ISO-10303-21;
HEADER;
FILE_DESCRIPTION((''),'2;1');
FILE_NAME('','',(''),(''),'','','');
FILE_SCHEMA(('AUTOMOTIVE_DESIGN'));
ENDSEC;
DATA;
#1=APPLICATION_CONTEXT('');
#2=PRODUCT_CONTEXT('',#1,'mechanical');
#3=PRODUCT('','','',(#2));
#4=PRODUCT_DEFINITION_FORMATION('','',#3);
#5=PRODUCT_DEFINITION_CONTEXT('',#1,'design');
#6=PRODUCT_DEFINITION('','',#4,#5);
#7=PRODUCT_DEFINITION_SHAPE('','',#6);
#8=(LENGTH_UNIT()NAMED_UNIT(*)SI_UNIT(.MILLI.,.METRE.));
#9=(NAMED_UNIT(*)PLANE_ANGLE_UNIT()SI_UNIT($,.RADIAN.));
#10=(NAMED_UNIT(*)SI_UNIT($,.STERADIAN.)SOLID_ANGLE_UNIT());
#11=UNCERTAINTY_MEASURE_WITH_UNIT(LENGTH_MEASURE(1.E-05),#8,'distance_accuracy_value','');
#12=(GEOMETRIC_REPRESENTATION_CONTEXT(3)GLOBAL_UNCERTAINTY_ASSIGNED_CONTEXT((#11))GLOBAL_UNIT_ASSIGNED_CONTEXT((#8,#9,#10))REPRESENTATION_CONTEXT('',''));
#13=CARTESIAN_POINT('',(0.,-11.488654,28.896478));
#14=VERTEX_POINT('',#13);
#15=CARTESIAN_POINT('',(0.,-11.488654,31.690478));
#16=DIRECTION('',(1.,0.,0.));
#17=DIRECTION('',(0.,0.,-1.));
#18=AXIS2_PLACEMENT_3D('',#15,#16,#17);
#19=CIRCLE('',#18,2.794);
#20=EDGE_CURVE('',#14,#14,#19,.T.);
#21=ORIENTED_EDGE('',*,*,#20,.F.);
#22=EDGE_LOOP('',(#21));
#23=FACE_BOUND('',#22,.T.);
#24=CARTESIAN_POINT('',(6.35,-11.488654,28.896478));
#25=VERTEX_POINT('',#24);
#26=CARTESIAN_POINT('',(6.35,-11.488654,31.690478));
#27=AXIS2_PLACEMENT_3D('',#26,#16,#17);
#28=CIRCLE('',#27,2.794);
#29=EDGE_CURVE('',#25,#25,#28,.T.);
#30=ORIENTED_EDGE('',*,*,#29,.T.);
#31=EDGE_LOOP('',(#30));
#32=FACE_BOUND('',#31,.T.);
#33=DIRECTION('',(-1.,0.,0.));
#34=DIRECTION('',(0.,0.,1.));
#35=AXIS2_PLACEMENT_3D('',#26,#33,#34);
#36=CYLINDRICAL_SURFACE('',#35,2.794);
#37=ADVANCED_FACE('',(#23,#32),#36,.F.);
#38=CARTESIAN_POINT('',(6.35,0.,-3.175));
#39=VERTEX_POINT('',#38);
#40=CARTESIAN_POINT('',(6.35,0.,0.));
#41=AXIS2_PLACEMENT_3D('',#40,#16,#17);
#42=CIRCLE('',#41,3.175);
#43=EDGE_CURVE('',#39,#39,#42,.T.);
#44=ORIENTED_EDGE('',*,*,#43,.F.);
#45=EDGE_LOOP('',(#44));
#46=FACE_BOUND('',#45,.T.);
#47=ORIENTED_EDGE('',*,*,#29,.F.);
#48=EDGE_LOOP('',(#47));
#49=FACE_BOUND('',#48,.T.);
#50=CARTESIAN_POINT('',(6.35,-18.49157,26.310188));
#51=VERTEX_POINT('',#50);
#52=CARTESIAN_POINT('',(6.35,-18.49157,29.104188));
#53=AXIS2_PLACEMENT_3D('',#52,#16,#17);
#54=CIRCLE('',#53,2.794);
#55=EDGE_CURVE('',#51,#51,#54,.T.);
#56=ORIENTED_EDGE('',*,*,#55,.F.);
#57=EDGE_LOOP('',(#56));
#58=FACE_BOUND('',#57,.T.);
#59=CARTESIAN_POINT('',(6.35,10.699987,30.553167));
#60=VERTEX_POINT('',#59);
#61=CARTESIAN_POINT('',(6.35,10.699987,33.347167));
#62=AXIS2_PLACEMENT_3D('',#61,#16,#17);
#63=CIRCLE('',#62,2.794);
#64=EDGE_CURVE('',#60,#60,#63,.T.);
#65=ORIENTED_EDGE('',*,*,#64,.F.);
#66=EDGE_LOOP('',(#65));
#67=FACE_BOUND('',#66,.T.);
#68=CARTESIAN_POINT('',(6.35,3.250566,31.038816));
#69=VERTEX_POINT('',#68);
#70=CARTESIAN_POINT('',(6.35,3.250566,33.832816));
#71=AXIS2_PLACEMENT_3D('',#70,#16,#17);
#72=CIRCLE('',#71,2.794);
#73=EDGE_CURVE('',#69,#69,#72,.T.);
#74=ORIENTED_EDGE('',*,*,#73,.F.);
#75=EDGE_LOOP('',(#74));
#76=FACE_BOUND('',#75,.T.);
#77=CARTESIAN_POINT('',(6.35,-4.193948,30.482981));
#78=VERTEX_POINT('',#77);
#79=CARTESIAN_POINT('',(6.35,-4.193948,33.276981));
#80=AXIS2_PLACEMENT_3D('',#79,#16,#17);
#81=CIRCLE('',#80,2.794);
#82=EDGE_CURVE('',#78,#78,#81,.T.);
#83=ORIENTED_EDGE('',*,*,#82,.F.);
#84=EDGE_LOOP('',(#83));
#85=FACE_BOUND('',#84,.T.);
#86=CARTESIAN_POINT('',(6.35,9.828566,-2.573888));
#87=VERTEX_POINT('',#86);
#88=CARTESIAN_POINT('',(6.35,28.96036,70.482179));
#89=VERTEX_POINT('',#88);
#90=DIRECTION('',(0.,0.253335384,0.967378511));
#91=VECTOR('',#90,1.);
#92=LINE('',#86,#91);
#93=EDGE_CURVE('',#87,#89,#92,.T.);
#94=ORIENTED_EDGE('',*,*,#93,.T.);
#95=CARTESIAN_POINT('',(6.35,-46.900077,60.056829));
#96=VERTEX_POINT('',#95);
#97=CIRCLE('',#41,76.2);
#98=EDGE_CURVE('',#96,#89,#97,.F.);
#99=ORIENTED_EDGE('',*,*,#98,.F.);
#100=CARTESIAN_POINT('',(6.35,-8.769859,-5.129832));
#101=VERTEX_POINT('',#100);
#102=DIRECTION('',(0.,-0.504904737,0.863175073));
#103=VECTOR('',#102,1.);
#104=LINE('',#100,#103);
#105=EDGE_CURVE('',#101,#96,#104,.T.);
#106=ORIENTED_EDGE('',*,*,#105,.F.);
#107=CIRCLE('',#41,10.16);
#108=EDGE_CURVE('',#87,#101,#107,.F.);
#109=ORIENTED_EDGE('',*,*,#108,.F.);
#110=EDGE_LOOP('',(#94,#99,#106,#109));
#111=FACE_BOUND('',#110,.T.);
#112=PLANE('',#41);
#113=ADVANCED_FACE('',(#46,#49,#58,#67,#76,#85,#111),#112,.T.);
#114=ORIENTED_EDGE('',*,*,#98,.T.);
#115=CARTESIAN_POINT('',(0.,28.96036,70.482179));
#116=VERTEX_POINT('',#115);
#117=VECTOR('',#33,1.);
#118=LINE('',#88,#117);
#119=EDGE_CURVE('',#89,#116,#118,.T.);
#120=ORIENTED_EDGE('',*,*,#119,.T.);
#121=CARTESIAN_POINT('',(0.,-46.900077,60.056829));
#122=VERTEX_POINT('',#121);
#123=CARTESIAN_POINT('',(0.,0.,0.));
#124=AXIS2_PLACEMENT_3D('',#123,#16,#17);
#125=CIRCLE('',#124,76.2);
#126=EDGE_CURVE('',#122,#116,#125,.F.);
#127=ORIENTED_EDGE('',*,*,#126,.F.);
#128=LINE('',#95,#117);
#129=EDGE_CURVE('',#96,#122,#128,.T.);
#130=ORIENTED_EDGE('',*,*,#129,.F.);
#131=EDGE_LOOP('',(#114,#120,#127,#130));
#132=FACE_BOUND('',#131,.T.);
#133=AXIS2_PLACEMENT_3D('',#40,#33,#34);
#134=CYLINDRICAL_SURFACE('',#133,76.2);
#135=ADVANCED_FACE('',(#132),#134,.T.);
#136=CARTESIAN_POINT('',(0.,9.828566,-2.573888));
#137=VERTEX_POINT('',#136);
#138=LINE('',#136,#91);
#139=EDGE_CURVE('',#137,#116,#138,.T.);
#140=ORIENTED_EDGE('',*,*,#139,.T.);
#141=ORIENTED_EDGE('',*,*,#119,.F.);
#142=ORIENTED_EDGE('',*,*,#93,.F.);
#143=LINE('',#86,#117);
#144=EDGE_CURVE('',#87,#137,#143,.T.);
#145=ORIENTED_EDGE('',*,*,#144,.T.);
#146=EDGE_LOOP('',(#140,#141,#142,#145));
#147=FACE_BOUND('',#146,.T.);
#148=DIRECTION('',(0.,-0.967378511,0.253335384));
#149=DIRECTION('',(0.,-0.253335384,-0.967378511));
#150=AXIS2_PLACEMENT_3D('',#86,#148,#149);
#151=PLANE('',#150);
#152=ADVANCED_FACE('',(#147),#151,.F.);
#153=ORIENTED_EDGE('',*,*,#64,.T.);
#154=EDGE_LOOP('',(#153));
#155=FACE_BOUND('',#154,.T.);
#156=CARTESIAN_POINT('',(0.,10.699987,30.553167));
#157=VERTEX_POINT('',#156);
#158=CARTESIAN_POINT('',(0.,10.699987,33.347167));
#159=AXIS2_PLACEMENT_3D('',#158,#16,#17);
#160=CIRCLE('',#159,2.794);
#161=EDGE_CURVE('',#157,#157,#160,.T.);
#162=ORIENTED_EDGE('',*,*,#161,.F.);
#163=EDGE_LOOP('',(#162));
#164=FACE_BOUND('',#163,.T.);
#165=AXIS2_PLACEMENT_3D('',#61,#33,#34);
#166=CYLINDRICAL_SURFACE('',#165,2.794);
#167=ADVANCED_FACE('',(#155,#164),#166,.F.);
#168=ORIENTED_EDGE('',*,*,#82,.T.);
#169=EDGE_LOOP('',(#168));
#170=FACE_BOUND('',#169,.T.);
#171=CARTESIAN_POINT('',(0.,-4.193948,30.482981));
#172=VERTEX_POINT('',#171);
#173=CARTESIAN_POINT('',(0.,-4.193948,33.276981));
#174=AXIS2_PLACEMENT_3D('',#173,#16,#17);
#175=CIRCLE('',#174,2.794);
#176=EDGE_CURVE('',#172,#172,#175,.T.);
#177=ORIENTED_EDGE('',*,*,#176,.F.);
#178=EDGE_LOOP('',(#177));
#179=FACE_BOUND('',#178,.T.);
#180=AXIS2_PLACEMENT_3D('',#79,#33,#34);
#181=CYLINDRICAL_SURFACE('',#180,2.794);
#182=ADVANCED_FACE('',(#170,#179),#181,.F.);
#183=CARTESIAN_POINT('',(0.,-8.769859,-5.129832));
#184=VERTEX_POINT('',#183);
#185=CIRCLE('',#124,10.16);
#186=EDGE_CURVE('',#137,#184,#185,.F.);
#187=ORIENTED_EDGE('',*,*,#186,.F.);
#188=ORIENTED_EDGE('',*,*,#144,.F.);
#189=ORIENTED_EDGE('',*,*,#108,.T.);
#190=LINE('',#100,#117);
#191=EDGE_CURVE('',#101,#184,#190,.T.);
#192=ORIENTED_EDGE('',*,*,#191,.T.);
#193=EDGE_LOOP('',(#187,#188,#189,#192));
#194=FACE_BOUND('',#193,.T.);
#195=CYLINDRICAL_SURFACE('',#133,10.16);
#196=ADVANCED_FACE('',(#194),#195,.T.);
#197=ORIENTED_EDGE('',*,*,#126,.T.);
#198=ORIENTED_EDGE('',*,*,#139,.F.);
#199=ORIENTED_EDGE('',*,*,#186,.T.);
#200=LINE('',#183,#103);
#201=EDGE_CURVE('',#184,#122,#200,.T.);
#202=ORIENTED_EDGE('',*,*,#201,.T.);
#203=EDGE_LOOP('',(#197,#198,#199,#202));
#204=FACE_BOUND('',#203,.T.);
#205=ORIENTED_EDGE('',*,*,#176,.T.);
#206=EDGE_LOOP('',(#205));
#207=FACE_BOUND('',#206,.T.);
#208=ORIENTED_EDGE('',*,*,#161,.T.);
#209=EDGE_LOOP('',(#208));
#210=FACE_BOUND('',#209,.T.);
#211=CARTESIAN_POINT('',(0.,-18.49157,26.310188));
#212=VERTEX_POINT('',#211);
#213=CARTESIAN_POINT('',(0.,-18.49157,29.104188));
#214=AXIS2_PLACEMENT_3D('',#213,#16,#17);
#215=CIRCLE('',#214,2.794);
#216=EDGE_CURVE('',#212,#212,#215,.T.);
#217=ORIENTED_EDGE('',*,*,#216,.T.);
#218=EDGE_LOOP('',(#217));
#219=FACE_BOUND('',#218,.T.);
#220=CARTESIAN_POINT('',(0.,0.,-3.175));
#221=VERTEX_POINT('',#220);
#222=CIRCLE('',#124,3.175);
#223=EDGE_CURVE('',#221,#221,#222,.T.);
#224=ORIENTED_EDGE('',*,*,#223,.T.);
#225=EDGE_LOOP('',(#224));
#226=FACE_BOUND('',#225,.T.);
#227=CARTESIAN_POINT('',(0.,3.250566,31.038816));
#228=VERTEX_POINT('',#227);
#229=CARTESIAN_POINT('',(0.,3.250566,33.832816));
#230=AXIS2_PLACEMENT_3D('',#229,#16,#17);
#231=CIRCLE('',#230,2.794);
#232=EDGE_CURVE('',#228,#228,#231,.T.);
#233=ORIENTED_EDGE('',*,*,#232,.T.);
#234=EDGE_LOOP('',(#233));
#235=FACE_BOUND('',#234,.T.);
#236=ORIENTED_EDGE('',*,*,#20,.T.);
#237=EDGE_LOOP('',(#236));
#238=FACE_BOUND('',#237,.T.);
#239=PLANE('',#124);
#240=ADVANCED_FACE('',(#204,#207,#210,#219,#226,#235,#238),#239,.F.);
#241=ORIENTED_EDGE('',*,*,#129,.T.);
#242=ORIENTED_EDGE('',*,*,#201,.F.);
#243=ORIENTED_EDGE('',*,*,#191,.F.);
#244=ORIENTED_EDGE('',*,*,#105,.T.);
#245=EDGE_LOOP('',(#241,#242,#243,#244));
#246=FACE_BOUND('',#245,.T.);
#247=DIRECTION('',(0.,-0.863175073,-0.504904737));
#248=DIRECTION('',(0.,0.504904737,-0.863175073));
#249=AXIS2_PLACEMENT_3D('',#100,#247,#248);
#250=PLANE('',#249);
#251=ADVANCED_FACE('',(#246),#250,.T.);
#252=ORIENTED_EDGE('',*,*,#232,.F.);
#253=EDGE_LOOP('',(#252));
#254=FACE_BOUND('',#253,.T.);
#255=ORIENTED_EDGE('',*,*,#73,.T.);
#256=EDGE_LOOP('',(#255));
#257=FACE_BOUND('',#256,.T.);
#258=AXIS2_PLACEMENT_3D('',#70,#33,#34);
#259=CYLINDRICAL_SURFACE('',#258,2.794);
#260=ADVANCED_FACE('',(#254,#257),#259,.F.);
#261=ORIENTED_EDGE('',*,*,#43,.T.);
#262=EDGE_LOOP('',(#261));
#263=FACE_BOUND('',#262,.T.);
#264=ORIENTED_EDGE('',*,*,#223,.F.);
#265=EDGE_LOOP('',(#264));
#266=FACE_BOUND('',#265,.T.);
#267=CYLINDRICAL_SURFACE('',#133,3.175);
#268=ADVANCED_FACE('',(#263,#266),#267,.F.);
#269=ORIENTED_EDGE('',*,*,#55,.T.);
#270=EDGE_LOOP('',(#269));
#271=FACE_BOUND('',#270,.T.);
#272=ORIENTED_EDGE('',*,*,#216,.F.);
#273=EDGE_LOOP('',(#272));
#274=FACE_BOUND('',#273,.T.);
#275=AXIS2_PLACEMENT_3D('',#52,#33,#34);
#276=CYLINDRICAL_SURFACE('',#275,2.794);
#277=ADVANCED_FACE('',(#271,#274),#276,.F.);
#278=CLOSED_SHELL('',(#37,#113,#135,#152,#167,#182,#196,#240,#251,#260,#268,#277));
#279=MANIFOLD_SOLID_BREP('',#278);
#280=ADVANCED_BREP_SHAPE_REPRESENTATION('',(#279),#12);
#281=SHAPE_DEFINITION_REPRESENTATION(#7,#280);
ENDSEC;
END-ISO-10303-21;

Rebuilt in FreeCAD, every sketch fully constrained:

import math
import FreeCAD as App
import Part
import Sketcher
Q = App.Units.Quantity

doc = App.newDocument("Part")
params = doc.addObject("Spreadsheet::Sheet", "Params")
for row, (alias, value) in enumerate([
    ("sketch1_radius", "3 in"),
    ("sketch1_radius2", "0.4 in"),
    ("sketch1_diameter", "0.22 in"),
    ("sketch1_diameter2", "0.25 in"),
    ("pad1_length", "0.25 in"),
], start=1):
    params.set(f"A{row}", alias)
    params.set(f"B{row}", "=" + value)
    params.setAlias(f"B{row}", alias)

body = doc.addObject("PartDesign::Body", "Body")

sketch1 = body.newObject("Sketcher::SketchObject", "Sketch")
sketch1.AttachmentSupport = (doc.getObject("YZ_Plane"), [""])
sketch1.MapMode = "FlatFace"
sketch1.addGeometry([
    Part.LineSegment(App.Vector(9.8, -2.6, 0), App.Vector(29, 70.5, 0)),
    Part.ArcOfCircle(Part.Circle(App.Vector(0, 0, 0), App.Vector(0, 0, 1), 76.2), math.radians(68), math.radians(128)),
    Part.LineSegment(App.Vector(-46.9, 60.1, 0), App.Vector(-8.8, -5.1, 0)),
    Part.ArcOfCircle(Part.Circle(App.Vector(0, 0, 0), App.Vector(0, 0, 1), 10.2), math.radians(-150), math.radians(-15)),
    Part.Circle(App.Vector(-18.5, 29.1, 0), App.Vector(0, 0, 1), 2.8),
    Part.Circle(App.Vector(-11.5, 31.7, 0), App.Vector(0, 0, 1), 2.8),
    Part.Circle(App.Vector(-4.2, 33.3, 0), App.Vector(0, 0, 1), 2.8),
    Part.Circle(App.Vector(3.3, 33.8, 0), App.Vector(0, 0, 1), 2.8),
    Part.Circle(App.Vector(10.7, 33.3, 0), App.Vector(0, 0, 1), 2.8),
    Part.Circle(App.Vector(0, 0, 0), App.Vector(0, 0, 1), 3.2),
], False)
sketch1.addConstraint([
    Sketcher.Constraint("Coincident", 0, 2, 1, 1),
    Sketcher.Constraint("Coincident", 1, 2, 2, 1),
    Sketcher.Constraint("Tangent", 2, 2, 3, 1),
    Sketcher.Constraint("Tangent", 3, 2, 0, 1),
    Sketcher.Constraint("Coincident", 1, 3, -1, 1),
    Sketcher.Constraint("Coincident", 3, 3, -1, 1),
    Sketcher.Constraint("Coincident", 9, 3, -1, 1),
    Sketcher.Constraint("Equal", 4, 5),
    Sketcher.Constraint("Equal", 5, 6),
    Sketcher.Constraint("Equal", 6, 7),
    Sketcher.Constraint("Equal", 7, 8),
    Sketcher.Constraint("Radius", 1, Q("3 in")),
    Sketcher.Constraint("Radius", 3, Q("0.4 in")),
    Sketcher.Constraint("Diameter", 4, Q("0.22 in")),
    Sketcher.Constraint("Diameter", 9, Q("0.25 in")),
    Sketcher.Constraint("DistanceY", 6, 3, 0, 2, Q("37.205198 mm")),
    Sketcher.Constraint("DistanceY", 5, 3, 0, 2, Q("38.791701 mm")),
    Sketcher.Constraint("DistanceX", 4, 3, -1, 1, Q("18.49157 mm")),
    Sketcher.Constraint("DistanceY", -1, 1, 4, 3, Q("29.104188 mm")),
    Sketcher.Constraint("DistanceY", -1, 1, 6, 3, Q("33.276981 mm")),
    Sketcher.Constraint("DistanceY", -1, 1, 1, 2, Q("60.056829 mm")),
    Sketcher.Constraint("DistanceX", 5, 3, 7, 3, Q("14.73922 mm")),
    Sketcher.Constraint("DistanceY", 5, 3, 7, 3, Q("2.142339 mm")),
    Sketcher.Constraint("DistanceX", 7, 3, 8, 3, Q("7.449421 mm")),
    Sketcher.Constraint("DistanceY", 8, 3, 7, 3, Q("0.485649 mm")),
    Sketcher.Constraint("DistanceX", 1, 2, 6, 3, Q("42.70613 mm")),
    Sketcher.Constraint("DistanceX", 3, 2, 8, 3, Q("0.871421 mm")),
])
sketch1.setExpression("Constraints[11]", "Params.sketch1_radius")
sketch1.setExpression("Constraints[12]", "Params.sketch1_radius2")
sketch1.setExpression("Constraints[13]", "Params.sketch1_diameter")
sketch1.setExpression("Constraints[14]", "Params.sketch1_diameter2")
pad1 = body.newObject("PartDesign::Pad", "Pad")
pad1.Profile = sketch1
pad1.setExpression("Length", "Params.pad1_length")

doc.recompute()
